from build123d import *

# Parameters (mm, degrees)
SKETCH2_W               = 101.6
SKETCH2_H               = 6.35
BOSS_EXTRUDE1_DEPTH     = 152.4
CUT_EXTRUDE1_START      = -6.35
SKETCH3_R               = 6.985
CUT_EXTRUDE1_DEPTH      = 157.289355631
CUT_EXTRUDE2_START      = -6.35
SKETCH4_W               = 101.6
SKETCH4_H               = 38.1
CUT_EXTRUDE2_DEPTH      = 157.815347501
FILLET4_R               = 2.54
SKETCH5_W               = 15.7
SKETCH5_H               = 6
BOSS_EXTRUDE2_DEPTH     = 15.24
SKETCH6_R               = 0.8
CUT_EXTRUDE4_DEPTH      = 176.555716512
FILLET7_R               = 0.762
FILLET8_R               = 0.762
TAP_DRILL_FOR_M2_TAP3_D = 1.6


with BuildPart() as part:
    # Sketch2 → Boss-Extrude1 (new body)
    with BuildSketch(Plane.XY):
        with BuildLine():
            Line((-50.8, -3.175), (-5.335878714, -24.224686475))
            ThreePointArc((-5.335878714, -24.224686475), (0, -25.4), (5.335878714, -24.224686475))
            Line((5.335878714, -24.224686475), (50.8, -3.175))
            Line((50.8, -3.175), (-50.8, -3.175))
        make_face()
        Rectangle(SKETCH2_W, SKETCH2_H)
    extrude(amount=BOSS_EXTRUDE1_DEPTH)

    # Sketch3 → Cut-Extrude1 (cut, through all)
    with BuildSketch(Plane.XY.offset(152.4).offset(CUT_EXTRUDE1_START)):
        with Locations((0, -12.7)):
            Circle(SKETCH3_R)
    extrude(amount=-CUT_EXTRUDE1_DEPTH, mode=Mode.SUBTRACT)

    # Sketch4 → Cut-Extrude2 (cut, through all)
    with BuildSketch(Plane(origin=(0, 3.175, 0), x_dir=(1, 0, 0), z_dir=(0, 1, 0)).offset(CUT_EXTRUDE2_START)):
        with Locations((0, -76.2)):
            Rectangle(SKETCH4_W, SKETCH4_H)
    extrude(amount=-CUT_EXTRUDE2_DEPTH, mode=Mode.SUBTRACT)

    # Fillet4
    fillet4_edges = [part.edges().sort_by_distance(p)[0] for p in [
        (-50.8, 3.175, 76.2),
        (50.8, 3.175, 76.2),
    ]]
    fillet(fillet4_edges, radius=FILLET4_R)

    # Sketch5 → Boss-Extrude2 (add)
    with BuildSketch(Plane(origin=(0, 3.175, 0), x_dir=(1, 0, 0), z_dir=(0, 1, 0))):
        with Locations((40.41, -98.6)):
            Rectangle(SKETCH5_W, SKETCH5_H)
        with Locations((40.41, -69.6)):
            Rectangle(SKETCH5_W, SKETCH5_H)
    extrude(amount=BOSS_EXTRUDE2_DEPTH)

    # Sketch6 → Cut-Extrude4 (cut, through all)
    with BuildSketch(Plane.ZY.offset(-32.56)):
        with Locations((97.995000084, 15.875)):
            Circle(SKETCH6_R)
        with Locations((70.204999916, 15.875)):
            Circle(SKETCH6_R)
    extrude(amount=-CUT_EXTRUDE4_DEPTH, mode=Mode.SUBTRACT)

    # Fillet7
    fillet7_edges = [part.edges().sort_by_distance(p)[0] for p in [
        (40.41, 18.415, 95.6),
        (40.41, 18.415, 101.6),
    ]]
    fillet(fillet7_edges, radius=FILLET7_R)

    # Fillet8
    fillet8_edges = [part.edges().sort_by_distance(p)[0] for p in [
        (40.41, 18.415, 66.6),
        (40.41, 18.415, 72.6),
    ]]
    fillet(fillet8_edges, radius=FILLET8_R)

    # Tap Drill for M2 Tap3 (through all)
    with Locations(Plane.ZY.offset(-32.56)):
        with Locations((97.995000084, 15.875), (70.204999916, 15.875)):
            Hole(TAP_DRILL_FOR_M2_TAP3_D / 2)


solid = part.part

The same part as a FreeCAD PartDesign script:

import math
import FreeCAD as App
import Part
import Sketcher
from FreeCAD import Vector
Q = App.Units.Quantity


def edges_at(feature, points):
    """Names of the edges that pass closest to the given points."""
    edges = feature.Shape.Edges
    near = lambda p: min(range(len(edges)), key=lambda i: edges[i].distToShape(Part.Vertex(*p))[0])
    return sorted({f"Edge{near(p) + 1}" for p in points})

doc = App.newDocument("Part")
params = doc.addObject("Spreadsheet::Sheet", "Params")
for row, (alias, value) in enumerate([
    ("sketch1_radius", "0.5 in"),
    ("sketch1_width", "4 in"),
    ("sketch1_height", "0.25 in"),
    ("pad1_length", "6 in"),
    ("sketch2_diameter", "0.55 in"),
    ("sketch3_width", "4 in"),
    ("sketch3_height", "1.5 in"),
    ("fillet_radius", "0.1 in"),
    ("pad2_length", "0.6 in"),
    ("fillet2_radius", "0.03 in"),
    ("fillet3_radius", "0.03 in"),
    ("hole_diameter", "1.6 mm"),
], start=1):
    params.set(f"A{row}", alias)
    params.set(f"B{row}", "=" + value)
    params.setAlias(f"B{row}", alias)

body = doc.addObject("PartDesign::Body", "Body")

# Sketch on XY plane
sketch1 = doc.addObject("Sketcher::SketchObject", "Sketch")
body.addObject(sketch1)
sketch1.AttachmentSupport = (doc.XY_Plane, [""])
sketch1.MapMode = "FlatFace"
sketch1.addGeometry([
    Part.LineSegment(Vector(-50.8, -3.175, 0), Vector(-5.335879, -24.224686, 0)),  # 0
    Part.ArcOfCircle(Part.Circle(Vector(0, -12.7, 0), Vector(0, 0, 1), 12.7), math.radians(-114.843927), math.radians(-65.156073)),  # 1
    Part.LineSegment(Vector(5.335879, -24.224686, 0), Vector(50.8, -3.175, 0)),  # 2
    Part.LineSegment(Vector(50.8, -3.175, 0), Vector(50.8, 3.175, 0)),  # 3
    Part.LineSegment(Vector(50.8, 3.175, 0), Vector(-50.8, 3.175, 0)),  # 4
    Part.LineSegment(Vector(-50.8, 3.175, 0), Vector(-50.8, -3.175, 0)),  # 5
], False)
sketch1.addConstraint([
    Sketcher.Constraint("Tangent", 0, 2, 1, 1),
    Sketcher.Constraint("Tangent", 1, 2, 2, 1),
    Sketcher.Constraint("Coincident", 2, 2, 3, 1),
    Sketcher.Constraint("Coincident", 3, 2, 4, 1),
    Sketcher.Constraint("Coincident", 4, 2, 5, 1),
    Sketcher.Constraint("Coincident", 5, 2, 0, 1),
    Sketcher.Constraint("Vertical", 3),
    Sketcher.Constraint("Horizontal", 4),
    Sketcher.Constraint("Vertical", 5),
    Sketcher.Constraint("Symmetric", 2, 2, 4, 2, -1, 1),
    Sketcher.Constraint("Symmetric", 0, 2, 1, 2, -2),
    Sketcher.Constraint("Radius", 1, Q("0.5 in")),
    Sketcher.Constraint("DistanceX", 4, 2, 4, 1, Q("4 in")),
    Sketcher.Constraint("DistanceY", 3, 1, 3, 2, Q("0.25 in")),
    Sketcher.Constraint("DistanceY", 1, 3, -1, 1, Q("0.5 in")),
])
sketch1.setExpression("Constraints[11]", "Params.sketch1_radius")
sketch1.setExpression("Constraints[12]", "Params.sketch1_width")
sketch1.setExpression("Constraints[13]", "Params.sketch1_height")
pad1 = doc.addObject("PartDesign::Pad", "Pad")
body.addObject(pad1)
pad1.Profile = sketch1
pad1.setExpression("Length", "Params.pad1_length")

# Sketch on XY plane
sketch2 = doc.addObject("Sketcher::SketchObject", "Sketch001")
body.addObject(sketch2)
sketch2.AttachmentSupport = (doc.XY_Plane, [""])
sketch2.MapMode = "FlatFace"
sketch2.AttachmentOffset = App.Placement(Vector(0, 0, 5.75 * 25.4), App.Rotation())
sketch2.addGeometry(Part.Circle(Vector(0, -12.7, 0), Vector(0, 0, 1), 6.985), False)
sketch2.addConstraint([
    Sketcher.Constraint("PointOnObject", 0, 3, -2),
    Sketcher.Constraint("Diameter", 0, Q("0.55 in")),
    Sketcher.Constraint("DistanceY", 0, 3, -1, 1, Q("0.5 in")),
])
sketch2.setExpression("Constraints[1]", "Params.sketch2_diameter")
pocket1 = doc.addObject("PartDesign::Pocket", "Pocket")
body.addObject(pocket1)
pocket1.Profile = sketch2
pocket1.Type = "ThroughAll"

# Sketch on XZ plane
sketch3 = doc.addObject("Sketcher::SketchObject", "Sketch002")
body.addObject(sketch3)
sketch3.AttachmentSupport = (doc.XZ_Plane, [""])
sketch3.MapMode = "FlatFace"
sketch3.AttachmentOffset = App.Placement(Vector(0, 0, 0.125 * 25.4), App.Rotation())
sketch3.addGeometry([
    Part.LineSegment(Vector(-50.8, 57.15, 0), Vector(-50.8, 95.25, 0)),
    Part.LineSegment(Vector(-50.8, 95.25, 0), Vector(50.8, 95.25, 0)),
    Part.LineSegment(Vector(50.8, 95.25, 0), Vector(50.8, 57.15, 0)),
    Part.LineSegment(Vector(50.8, 57.15, 0), Vector(-50.8, 57.15, 0)),
], False)
sketch3.addConstraint([
    Sketcher.Constraint("Coincident", 0, 2, 1, 1),
    Sketcher.Constraint("Coincident", 1, 2, 2, 1),
    Sketcher.Constraint("Coincident", 2, 2, 3, 1),
    Sketcher.Constraint("Coincident", 3, 2, 0, 1),
    Sketcher.Constraint("Vertical", 0),
    Sketcher.Constraint("Horizontal", 1),
    Sketcher.Constraint("Vertical", 2),
    Sketcher.Constraint("Horizontal", 3),
    Sketcher.Constraint("DistanceX", 1, 1, 1, 2, Q("4 in")),
    Sketcher.Constraint("DistanceY", 0, 1, 0, 2, Q("1.5 in")),
    Sketcher.Constraint("DistanceX", 0, 2, -1, 1, Q("2 in")),
    Sketcher.Constraint("DistanceY", -1, 1, 0, 2, Q("3.75 in")),
])
sketch3.setExpression("Constraints[8]", "Params.sketch3_width")
sketch3.setExpression("Constraints[9]", "Params.sketch3_height")
pocket2 = doc.addObject("PartDesign::Pocket", "Pocket001")
body.addObject(pocket2)
pocket2.Profile = sketch3
pocket2.Type = "ThroughAll"
pocket2.Reversed = True
doc.recompute()

fillet = doc.addObject("PartDesign::Fillet", "Fillet")
body.addObject(fillet)
fillet.Base = (pocket2, edges_at(pocket2, [(-50.8, 3.175, 76.2), (50.8, 3.175, 76.2)]))
fillet.setExpression("Radius", "Params.fillet_radius")

# Sketch on XZ plane
sketch4 = doc.addObject("Sketcher::SketchObject", "Sketch003")
body.addObject(sketch4)
sketch4.AttachmentSupport = (doc.XZ_Plane, [""])
sketch4.MapMode = "FlatFace"
sketch4.AttachmentOffset = App.Placement(Vector(0, 0, -0.125 * 25.4), App.Rotation())
sketch4.addGeometry([
    Part.LineSegment(Vector(32.56, 95.6, 0), Vector(32.56, 101.6, 0)),  # 0
    Part.LineSegment(Vector(32.56, 101.6, 0), Vector(48.26, 101.6, 0)),  # 1
    Part.LineSegment(Vector(48.26, 101.6, 0), Vector(48.26, 95.6, 0)),  # 2
    Part.LineSegment(Vector(48.26, 95.6, 0), Vector(32.56, 95.6, 0)),  # 3
    Part.LineSegment(Vector(32.56, 66.6, 0), Vector(32.56, 72.6, 0)),  # 4
    Part.LineSegment(Vector(32.56, 72.6, 0), Vector(48.26, 72.6, 0)),  # 5
    Part.LineSegment(Vector(48.26, 72.6, 0), Vector(48.26, 66.6, 0)),  # 6
    Part.LineSegment(Vector(48.26, 66.6, 0), Vector(32.56, 66.6, 0)),  # 7
], False)
sketch4.addConstraint([
    Sketcher.Constraint("Coincident", 0, 2, 1, 1),
    Sketcher.Constraint("Coincident", 1, 2, 2, 1),
    Sketcher.Constraint("Coincident", 2, 2, 3, 1),
    Sketcher.Constraint("Coincident", 3, 2, 0, 1),
    Sketcher.Constraint("Coincident", 4, 2, 5, 1),
    Sketcher.Constraint("Coincident", 5, 2, 6, 1),
    Sketcher.Constraint("Coincident", 6, 2, 7, 1),
    Sketcher.Constraint("Coincident", 7, 2, 4, 1),
    Sketcher.Constraint("Vertical", 0),
    Sketcher.Constraint("Horizontal", 1),
    Sketcher.Constraint("Vertical", 2),
    Sketcher.Constraint("Horizontal", 3),
    Sketcher.Constraint("Vertical", 4),
    Sketcher.Constraint("Horizontal", 5),
    Sketcher.Constraint("Vertical", 6),
    Sketcher.Constraint("Horizontal", 7),
    Sketcher.Constraint("Vertical", 3, 2, 4, 2),
    Sketcher.Constraint("Vertical", 2, 2, 5, 2),
    Sketcher.Constraint("Equal", 2, 4),
    Sketcher.Constraint("DistanceY", -1, 1, 0, 2, Q("4 in")),
    Sketcher.Constraint("DistanceX", -1, 1, 1, 2, Q("1.9 in")),
    Sketcher.Constraint("DistanceX", 1, 1, 1, 2, Q("15.7 mm")),
    Sketcher.Constraint("DistanceY", 0, 1, 0, 2, Q("6 mm")),
    Sketcher.Constraint("DistanceY", -1, 1, 4, 2, Q("72.6 mm")),
])
pad2 = doc.addObject("PartDesign::Pad", "Pad001")
body.addObject(pad2)
pad2.Profile = sketch4
pad2.setExpression("Length", "Params.pad2_length")
pad2.Reversed = True

# Sketch on YZ plane
sketch5 = doc.addObject("Sketcher::SketchObject", "Sketch004")
body.addObject(sketch5)
sketch5.AttachmentSupport = (doc.YZ_Plane, [""])
sketch5.MapMode = "FlatFace"
sketch5.AttachmentOffset = App.Placement(Vector(0, 0, 32.56), App.Rotation())
sketch5.addGeometry([
    Part.Circle(Vector(15.875, 97.995, 0), Vector(0, 0, 1), 0.8),
    Part.Circle(Vector(15.875, 70.205, 0), Vector(0, 0, 1), 0.8),
], False)
sketch5.addConstraint([
    Sketcher.Constraint("Equal", 0, 1),
    Sketcher.Constraint("Vertical", 0, 3, 1, 3),
    Sketcher.Constraint("Diameter", 0, Q("1.6 mm")),
    Sketcher.Constraint("DistanceX", -1, 1, 0, 3, Q("0.625 in")),
    Sketcher.Constraint("DistanceY", -1, 1, 0, 3, Q("97.995 mm")),
    Sketcher.Constraint("DistanceY", -1, 1, 1, 3, Q("70.205 mm")),
])
pocket3 = doc.addObject("PartDesign::Pocket", "Pocket002")
body.addObject(pocket3)
pocket3.Profile = sketch5
pocket3.Type = "ThroughAll"
pocket3.Reversed = True
doc.recompute()

fillet2 = doc.addObject("PartDesign::Fillet", "Fillet001")
body.addObject(fillet2)
fillet2.Base = (pocket3, edges_at(pocket3, [(40.41, 18.415, 95.6), (40.41, 18.415, 101.6)]))
fillet2.setExpression("Radius", "Params.fillet2_radius")
doc.recompute()

fillet3 = doc.addObject("PartDesign::Fillet", "Fillet002")
body.addObject(fillet3)
fillet3.Base = (fillet2, edges_at(fillet2, [(40.41, 18.415, 66.6), (40.41, 18.415, 72.6)]))
fillet3.setExpression("Radius", "Params.fillet3_radius")

# Sketch on YZ plane
sketch6 = doc.addObject("Sketcher::SketchObject", "Sketch005")
body.addObject(sketch6)
sketch6.AttachmentSupport = (doc.YZ_Plane, [""])
sketch6.MapMode = "FlatFace"
sketch6.AttachmentOffset = App.Placement(Vector(0, 0, 32.56), App.Rotation())
sketch6.addGeometry([
    Part.Circle(Vector(15.875, 97.995, 0), Vector(0, 0, 1), 0.8),
    Part.Circle(Vector(15.875, 70.205, 0), Vector(0, 0, 1), 0.8),
], False)
sketch6.addConstraint([
    Sketcher.Constraint("Equal", 0, 1),
    Sketcher.Constraint("Vertical", 0, 3, 1, 3),
    Sketcher.Constraint("Diameter", 0, Q("1.6 mm")),
    Sketcher.Constraint("DistanceX", -1, 1, 0, 3, Q("0.625 in")),
    Sketcher.Constraint("DistanceY", -1, 1, 0, 3, Q("97.995 mm")),
    Sketcher.Constraint("DistanceY", -1, 1, 1, 3, Q("70.205 mm")),
])
doc.recompute()
hole = doc.addObject("PartDesign::Hole", "Hole")
body.addObject(hole)
hole.Profile = sketch6
hole.ThreadType = "None"
hole.setExpression("Diameter", "Params.hole_diameter")
hole.DepthType = "ThroughAll"
hole.Reversed = True

doc.recompute()
